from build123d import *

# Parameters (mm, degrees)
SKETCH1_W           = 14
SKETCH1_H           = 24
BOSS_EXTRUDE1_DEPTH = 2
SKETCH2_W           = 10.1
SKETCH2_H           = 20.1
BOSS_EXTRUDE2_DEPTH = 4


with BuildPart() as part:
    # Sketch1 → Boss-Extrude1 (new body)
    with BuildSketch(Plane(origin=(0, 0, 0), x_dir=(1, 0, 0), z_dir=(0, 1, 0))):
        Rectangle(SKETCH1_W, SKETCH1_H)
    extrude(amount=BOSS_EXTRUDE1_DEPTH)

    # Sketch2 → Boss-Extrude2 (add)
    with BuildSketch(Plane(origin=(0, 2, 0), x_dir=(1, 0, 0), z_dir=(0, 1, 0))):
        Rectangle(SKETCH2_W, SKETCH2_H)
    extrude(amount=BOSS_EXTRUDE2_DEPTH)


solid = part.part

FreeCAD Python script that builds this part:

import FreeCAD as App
import Part
import Sketcher
from FreeCAD import Vector


def add_polygon(sketch, points):
    """Adds a closed chain of lines whose ends are joined by coincident constraints."""
    first, n = sketch.GeometryCount, len(points)
    for a, b in zip(points, points[1:] + points[:1]):
        sketch.addGeometry(Part.LineSegment(App.Vector(*a, 0), App.Vector(*b, 0)), False)
    for i in range(n):
        sketch.addConstraint(Sketcher.Constraint("Coincident", first + i, 2, first + (i + 1) % n, 1))

doc = App.newDocument("Part")
body = doc.addObject("PartDesign::Body", "Body")

# Sketch on XZ plane
sketch1 = doc.addObject("Sketcher::SketchObject", "Sketch")
body.addObject(sketch1)
sketch1.AttachmentSupport = (doc.XZ_Plane, [""])
sketch1.MapMode = "FlatFace"
add_polygon(sketch1, [(-7, -12), (-7, 12), (7, 12), (7, -12)])  # lines 0-3
sketch1.addConstraint([
    Sketcher.Constraint("Vertical", 0),
    Sketcher.Constraint("Horizontal", 1),
    Sketcher.Constraint("Vertical", 2),
    Sketcher.Constraint("Horizontal", 3),
    Sketcher.Constraint("Symmetric", 0, 2, 2, 2, -1, 1),
    Sketcher.Constraint("DistanceX", 1, 1, 1, 2, 14.0),
    Sketcher.Constraint("DistanceY", 0, 1, 0, 2, 24.0),
])
pad1 = doc.addObject("PartDesign::Pad", "Pad")
body.addObject(pad1)
pad1.Profile = sketch1
pad1.Length = 2
pad1.Reversed = True

# Sketch on XZ plane
sketch2 = doc.addObject("Sketcher::SketchObject", "Sketch001")
body.addObject(sketch2)
sketch2.AttachmentSupport = (doc.XZ_Plane, [""])
sketch2.MapMode = "FlatFace"
sketch2.AttachmentOffset = App.Placement(Vector(0, 0, -2), App.Rotation())
add_polygon(sketch2, [(-5, -10), (-5, 10), (5, 10), (5, -10)])  # lines 0-3
sketch2.addConstraint([
    Sketcher.Constraint("Vertical", 0),
    Sketcher.Constraint("Horizontal", 1),
    Sketcher.Constraint("Vertical", 2),
    Sketcher.Constraint("Horizontal", 3),
    Sketcher.Constraint("Symmetric", 0, 2, 2, 2, -1, 1),
    Sketcher.Constraint("DistanceX", 1, 1, 1, 2, 10.1),
    Sketcher.Constraint("DistanceY", 0, 1, 0, 2, 20.1),
])
pad2 = doc.addObject("PartDesign::Pad", "Pad001")
body.addObject(pad2)
pad2.Profile = sketch2
pad2.Length = 4
pad2.Reversed = True

doc.recompute()
